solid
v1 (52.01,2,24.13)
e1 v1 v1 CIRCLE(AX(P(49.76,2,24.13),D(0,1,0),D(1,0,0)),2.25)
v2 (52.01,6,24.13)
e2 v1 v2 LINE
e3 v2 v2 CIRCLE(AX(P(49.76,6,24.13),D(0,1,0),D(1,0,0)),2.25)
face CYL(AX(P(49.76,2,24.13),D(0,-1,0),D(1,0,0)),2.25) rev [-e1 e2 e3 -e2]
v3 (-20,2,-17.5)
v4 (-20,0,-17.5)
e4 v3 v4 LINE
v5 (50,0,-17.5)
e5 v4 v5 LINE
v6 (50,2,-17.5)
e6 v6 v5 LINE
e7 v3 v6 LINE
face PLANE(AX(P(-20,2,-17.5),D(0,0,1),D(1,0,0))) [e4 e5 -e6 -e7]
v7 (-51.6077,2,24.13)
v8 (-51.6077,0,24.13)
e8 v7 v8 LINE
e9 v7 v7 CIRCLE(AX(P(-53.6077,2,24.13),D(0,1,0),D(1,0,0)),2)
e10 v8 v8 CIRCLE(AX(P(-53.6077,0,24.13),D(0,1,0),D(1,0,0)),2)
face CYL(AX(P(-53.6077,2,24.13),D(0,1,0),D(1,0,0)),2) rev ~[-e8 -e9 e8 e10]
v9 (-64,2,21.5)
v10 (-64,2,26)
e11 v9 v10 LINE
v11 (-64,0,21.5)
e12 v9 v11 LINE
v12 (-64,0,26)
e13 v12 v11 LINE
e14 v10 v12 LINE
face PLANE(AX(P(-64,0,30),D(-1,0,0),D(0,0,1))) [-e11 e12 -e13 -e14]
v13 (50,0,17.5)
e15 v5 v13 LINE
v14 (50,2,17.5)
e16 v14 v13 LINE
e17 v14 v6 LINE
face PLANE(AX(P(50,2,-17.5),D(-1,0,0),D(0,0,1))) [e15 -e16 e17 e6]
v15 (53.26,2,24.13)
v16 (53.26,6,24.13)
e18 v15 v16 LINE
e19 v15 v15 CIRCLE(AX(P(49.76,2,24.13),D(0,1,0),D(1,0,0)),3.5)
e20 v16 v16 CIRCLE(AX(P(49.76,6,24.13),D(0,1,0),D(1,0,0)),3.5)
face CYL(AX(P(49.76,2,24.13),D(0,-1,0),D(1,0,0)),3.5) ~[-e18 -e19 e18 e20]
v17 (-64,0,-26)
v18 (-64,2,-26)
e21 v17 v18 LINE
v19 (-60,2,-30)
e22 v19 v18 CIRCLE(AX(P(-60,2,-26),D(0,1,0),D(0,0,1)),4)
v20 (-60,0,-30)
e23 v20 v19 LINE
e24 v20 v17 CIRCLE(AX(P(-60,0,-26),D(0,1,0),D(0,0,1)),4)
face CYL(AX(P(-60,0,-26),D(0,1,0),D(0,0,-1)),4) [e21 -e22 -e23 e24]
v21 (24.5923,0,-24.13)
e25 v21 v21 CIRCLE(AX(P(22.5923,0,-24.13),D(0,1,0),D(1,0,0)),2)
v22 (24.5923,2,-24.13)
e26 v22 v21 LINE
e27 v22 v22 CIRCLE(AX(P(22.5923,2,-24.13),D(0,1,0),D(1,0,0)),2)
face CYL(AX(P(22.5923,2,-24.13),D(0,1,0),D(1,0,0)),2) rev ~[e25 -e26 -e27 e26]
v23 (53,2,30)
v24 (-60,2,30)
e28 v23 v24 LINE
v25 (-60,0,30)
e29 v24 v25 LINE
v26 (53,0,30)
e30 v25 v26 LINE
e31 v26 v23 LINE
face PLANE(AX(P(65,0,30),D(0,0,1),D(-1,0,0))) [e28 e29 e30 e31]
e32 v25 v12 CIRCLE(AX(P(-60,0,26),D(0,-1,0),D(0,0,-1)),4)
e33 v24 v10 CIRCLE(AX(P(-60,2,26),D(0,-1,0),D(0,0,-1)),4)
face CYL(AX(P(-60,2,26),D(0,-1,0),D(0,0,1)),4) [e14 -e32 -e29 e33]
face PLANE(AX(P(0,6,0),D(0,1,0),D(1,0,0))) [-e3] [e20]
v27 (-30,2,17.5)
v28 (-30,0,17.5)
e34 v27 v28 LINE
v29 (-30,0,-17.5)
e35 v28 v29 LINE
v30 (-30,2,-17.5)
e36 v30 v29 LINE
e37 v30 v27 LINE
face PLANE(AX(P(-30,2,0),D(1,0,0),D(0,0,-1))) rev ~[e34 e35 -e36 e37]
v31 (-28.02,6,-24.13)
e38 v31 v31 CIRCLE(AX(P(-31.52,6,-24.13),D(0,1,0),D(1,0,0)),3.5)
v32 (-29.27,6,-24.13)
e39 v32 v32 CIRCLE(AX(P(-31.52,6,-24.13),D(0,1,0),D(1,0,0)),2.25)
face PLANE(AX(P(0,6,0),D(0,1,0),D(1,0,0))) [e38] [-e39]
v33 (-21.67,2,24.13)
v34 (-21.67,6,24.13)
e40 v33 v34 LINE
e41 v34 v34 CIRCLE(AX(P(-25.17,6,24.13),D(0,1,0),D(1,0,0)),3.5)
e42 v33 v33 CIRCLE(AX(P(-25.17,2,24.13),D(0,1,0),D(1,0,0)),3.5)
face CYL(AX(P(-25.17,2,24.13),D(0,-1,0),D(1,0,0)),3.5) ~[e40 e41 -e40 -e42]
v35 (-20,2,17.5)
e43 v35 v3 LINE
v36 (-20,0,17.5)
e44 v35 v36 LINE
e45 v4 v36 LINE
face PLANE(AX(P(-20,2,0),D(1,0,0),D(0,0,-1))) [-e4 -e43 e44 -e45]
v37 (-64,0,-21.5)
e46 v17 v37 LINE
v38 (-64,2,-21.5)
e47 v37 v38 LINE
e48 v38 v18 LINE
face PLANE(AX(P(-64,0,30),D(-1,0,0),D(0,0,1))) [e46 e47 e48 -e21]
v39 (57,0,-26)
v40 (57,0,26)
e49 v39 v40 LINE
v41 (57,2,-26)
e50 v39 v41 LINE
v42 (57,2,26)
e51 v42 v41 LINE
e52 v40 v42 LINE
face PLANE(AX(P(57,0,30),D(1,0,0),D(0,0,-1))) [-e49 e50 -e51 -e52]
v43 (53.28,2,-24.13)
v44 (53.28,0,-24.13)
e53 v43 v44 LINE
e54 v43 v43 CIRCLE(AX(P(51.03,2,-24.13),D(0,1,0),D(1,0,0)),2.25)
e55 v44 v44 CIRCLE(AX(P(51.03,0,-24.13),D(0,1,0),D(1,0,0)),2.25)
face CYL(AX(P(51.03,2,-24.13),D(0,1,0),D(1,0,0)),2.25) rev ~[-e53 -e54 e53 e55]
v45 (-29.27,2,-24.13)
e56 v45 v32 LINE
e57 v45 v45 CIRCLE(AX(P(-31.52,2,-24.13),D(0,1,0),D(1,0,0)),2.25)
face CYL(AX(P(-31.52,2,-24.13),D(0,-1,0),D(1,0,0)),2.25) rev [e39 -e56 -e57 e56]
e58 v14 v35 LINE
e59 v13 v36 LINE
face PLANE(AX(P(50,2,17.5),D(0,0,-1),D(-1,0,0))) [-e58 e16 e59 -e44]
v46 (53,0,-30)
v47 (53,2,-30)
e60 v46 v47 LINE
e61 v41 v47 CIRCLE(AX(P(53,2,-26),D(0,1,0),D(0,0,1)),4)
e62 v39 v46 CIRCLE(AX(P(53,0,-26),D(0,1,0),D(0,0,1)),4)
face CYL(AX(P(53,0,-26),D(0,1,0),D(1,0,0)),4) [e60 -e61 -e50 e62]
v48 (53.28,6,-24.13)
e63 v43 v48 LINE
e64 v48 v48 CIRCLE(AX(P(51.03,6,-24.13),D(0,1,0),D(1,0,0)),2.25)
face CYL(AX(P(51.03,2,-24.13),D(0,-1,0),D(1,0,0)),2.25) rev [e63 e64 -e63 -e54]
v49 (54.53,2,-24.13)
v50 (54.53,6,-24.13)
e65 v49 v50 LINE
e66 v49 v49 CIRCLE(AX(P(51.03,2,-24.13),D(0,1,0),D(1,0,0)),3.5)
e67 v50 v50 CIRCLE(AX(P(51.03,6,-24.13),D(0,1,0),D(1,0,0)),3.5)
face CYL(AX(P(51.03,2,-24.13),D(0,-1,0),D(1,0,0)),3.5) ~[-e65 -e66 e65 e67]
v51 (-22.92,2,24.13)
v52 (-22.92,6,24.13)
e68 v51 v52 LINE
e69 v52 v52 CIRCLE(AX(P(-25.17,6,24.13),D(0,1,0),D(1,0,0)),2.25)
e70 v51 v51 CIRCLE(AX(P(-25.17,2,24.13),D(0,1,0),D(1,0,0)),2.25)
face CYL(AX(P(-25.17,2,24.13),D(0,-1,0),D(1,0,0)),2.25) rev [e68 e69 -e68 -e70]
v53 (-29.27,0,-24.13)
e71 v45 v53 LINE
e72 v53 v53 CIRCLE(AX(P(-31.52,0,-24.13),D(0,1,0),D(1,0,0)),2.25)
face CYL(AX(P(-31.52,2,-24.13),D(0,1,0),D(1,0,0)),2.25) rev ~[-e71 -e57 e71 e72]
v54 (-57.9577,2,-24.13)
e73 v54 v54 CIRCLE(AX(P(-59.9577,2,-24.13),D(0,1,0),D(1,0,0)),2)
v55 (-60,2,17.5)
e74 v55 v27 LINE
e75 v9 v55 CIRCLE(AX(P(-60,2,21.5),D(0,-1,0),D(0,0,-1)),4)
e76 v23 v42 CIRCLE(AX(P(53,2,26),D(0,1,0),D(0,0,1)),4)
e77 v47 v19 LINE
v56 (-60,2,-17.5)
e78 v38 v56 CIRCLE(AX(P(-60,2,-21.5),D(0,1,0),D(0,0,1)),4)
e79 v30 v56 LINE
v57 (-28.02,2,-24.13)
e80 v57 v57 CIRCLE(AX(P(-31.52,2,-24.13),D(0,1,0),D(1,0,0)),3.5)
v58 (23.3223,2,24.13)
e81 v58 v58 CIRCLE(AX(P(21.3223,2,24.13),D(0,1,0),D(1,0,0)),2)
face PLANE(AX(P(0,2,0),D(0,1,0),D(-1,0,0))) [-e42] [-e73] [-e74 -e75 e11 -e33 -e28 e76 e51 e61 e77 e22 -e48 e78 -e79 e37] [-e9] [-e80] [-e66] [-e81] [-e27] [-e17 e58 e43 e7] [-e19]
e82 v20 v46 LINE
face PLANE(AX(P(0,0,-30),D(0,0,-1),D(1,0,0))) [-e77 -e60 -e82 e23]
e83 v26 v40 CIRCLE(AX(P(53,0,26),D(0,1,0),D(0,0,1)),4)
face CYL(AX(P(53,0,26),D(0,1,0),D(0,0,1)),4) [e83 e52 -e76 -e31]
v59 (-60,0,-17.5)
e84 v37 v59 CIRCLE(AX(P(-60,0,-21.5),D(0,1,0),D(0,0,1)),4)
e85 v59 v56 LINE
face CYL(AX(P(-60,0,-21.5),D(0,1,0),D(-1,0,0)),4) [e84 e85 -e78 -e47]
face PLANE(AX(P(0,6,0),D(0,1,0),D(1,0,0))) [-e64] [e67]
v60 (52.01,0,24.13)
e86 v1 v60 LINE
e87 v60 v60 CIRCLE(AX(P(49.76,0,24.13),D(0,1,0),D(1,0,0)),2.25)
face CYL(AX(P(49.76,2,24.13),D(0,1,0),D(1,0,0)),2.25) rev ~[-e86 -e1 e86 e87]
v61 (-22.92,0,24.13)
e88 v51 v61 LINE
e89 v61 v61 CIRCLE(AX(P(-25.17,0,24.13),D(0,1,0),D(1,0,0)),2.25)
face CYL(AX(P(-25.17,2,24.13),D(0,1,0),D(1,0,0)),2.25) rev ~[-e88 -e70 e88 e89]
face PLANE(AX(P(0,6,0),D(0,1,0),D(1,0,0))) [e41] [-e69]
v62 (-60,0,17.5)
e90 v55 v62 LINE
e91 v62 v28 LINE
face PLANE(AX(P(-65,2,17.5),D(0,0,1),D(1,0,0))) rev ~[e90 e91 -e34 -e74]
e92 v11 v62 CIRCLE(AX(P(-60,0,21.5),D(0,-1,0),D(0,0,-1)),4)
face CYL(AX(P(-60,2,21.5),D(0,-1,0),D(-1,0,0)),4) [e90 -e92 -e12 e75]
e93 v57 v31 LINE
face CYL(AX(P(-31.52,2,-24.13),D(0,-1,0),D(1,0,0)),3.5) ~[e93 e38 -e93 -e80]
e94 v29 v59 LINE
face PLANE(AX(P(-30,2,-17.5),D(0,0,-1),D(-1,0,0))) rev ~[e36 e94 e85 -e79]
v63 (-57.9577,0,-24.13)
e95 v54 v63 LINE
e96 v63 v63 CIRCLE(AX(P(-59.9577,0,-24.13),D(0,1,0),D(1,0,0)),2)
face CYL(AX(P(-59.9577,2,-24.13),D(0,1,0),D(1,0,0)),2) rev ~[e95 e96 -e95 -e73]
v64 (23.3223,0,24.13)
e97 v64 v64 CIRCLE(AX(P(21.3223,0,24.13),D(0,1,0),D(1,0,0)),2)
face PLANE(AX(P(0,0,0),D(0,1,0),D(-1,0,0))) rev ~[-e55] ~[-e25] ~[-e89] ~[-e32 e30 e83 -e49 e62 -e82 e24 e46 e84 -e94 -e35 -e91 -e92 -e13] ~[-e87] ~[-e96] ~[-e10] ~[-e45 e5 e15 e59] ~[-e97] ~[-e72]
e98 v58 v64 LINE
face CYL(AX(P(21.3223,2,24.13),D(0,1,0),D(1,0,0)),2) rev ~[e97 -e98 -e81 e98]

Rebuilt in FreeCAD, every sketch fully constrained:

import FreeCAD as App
import Part
import Sketcher
Q = App.Units.Quantity


def edges_at(feature, points):
    """Names of the edges that pass closest to the given points."""
    edges = feature.Shape.Edges
    near = lambda p: min(range(len(edges)), key=lambda i: edges[i].distToShape(Part.Vertex(*p))[0])
    return sorted({f"Edge{near(p) + 1}" for p in points})

doc = App.newDocument("Part")
body = doc.addObject("PartDesign::Body", "Body")

sketch1 = body.newObject("Sketcher::SketchObject", "Sketch")
sketch1.AttachmentSupport = (doc.getObject("XZ_Plane"), [""])
sketch1.MapMode = "FlatFace"
sketch1.addGeometry([
    Part.LineSegment(App.Vector(65, 30, 0), App.Vector(65, -30, 0)),
    Part.LineSegment(App.Vector(65, -30, 0), App.Vector(-65, -30, 0)),
    Part.LineSegment(App.Vector(-65, -30, 0), App.Vector(-65, 30, 0)),
    Part.LineSegment(App.Vector(-65, 30, 0), App.Vector(65, 30, 0)),
], False)
sketch1.addConstraint([
    Sketcher.Constraint("Coincident", 0, 2, 1, 1),
    Sketcher.Constraint("Coincident", 1, 2, 2, 1),
    Sketcher.Constraint("Coincident", 2, 2, 3, 1),
    Sketcher.Constraint("Coincident", 3, 2, 0, 1),
    Sketcher.Constraint("Vertical", 0),
    Sketcher.Constraint("Horizontal", 1),
    Sketcher.Constraint("Vertical", 2),
    Sketcher.Constraint("Horizontal", 3),
    Sketcher.Constraint("Symmetric", 0, 2, 2, 2, -1, 1),
    Sketcher.Constraint("DistanceX", 1, 2, 1, 1, Q("130 mm")),
    Sketcher.Constraint("DistanceY", 0, 2, 0, 1, Q("60 mm")),
])
pad1 = body.newObject("PartDesign::Pad", "Pad")
pad1.Profile = sketch1
pad1.Length = 2
pad1.Reversed = True

sketch2 = body.newObject("Sketcher::SketchObject", "Sketch001")
sketch2.AttachmentSupport = (doc.getObject("XZ_Plane"), [""])
sketch2.MapMode = "FlatFace"
sketch2.AttachmentOffset = App.Placement(App.Vector(0, 0, -2), App.Rotation())
sketch2.addGeometry([
    Part.Circle(App.Vector(49.8, 24.1, 0), App.Vector(0, 0, 1), 2.2),
    Part.Circle(App.Vector(51, -24.1, 0), App.Vector(0, 0, 1), 2.2),
    Part.Circle(App.Vector(-31.5, -24.1, 0), App.Vector(0, 0, 1), 2.2),
    Part.Circle(App.Vector(-25.2, 24.1, 0), App.Vector(0, 0, 1), 2.2),
    Part.Circle(App.Vector(21.3, 24.1, 0), App.Vector(0, 0, 1), 2),
    Part.Circle(App.Vector(22.6, -24.1, 0), App.Vector(0, 0, 1), 2),
    Part.Circle(App.Vector(-60, -24.1, 0), App.Vector(0, 0, 1), 2),
    Part.Circle(App.Vector(-53.6, 24.1, 0), App.Vector(0, 0, 1), 2),
], False)
sketch2.addConstraint([
    Sketcher.Constraint("Equal", 0, 1),
    Sketcher.Constraint("Equal", 1, 2),
    Sketcher.Constraint("Equal", 2, 3),
    Sketcher.Constraint("Equal", 4, 5),
    Sketcher.Constraint("Equal", 5, 6),
    Sketcher.Constraint("Equal", 6, 7),
    Sketcher.Constraint("Horizontal", 1, 3, 2, 3),
    Sketcher.Constraint("Horizontal", 0, 3, 3, 3),
    Sketcher.Constraint("Horizontal", 3, 3, 4, 3),
    Sketcher.Constraint("Horizontal", 2, 3, 5, 3),
    Sketcher.Constraint("Horizontal", 5, 3, 6, 3),
    Sketcher.Constraint("Horizontal", 4, 3, 7, 3),
    Sketcher.Constraint("Diameter", 4, Q("4 mm")),
    Sketcher.Constraint("Diameter", 0, Q("4.5 mm")),
    Sketcher.Constraint("DistanceY", -1, 1, 0, 3, Q("24.13 mm")),
    Sketcher.Constraint("DistanceY", 1, 3, -1, 1, Q("24.13 mm")),
    Sketcher.Constraint("DistanceX", 2, 3, 1, 3, Q("82.55 mm")),
    Sketcher.Constraint("DistanceX", 3, 3, 0, 3, Q("74.93 mm")),
    Sketcher.Constraint("DistanceX", 6, 3, 5, 3, Q("82.55 mm")),
    Sketcher.Constraint("DistanceX", 7, 3, 4, 3, Q("74.93 mm")),
    Sketcher.Constraint("DistanceX", 3, 3, 1, 3, Q("76.2 mm")),
    Sketcher.Constraint("DistanceX", 7, 3, 5, 3, Q("76.2 mm")),
    Sketcher.Constraint("DistanceX", -1, 1, 0, 3, Q("49.76 mm")),
    Sketcher.Constraint("DistanceX", -1, 1, 4, 3, Q("21.3223 mm")),
])
pocket1 = body.newObject("PartDesign::Pocket", "Pocket")
pocket1.Profile = sketch2
pocket1.Length = 2
pocket1.Reversed = True

sketch3 = body.newObject("Sketcher::SketchObject", "Sketch002")
sketch3.AttachmentSupport = (doc.getObject("XZ_Plane"), [""])
sketch3.MapMode = "FlatFace"
sketch3.AttachmentOffset = App.Placement(App.Vector(0, 0, -2), App.Rotation())
sketch3.addGeometry([
    Part.LineSegment(App.Vector(-30, -18, 0), App.Vector(-65, -18, 0)),
    Part.LineSegment(App.Vector(-65, -18, 0), App.Vector(-65, 18, 0)),
    Part.LineSegment(App.Vector(-65, 18, 0), App.Vector(-30, 18, 0)),
    Part.LineSegment(App.Vector(-30, 18, 0), App.Vector(-30, -18, 0)),
    Part.LineSegment(App.Vector(-20, -18, 0), App.Vector(-20, 18, 0)),
    Part.LineSegment(App.Vector(-20, 18, 0), App.Vector(50, 18, 0)),
    Part.LineSegment(App.Vector(50, 18, 0), App.Vector(50, -18, 0)),
    Part.LineSegment(App.Vector(50, -18, 0), App.Vector(-20, -18, 0)),
], False)
sketch3.addConstraint([
    Sketcher.Constraint("Coincident", 0, 2, 1, 1),
    Sketcher.Constraint("Coincident", 1, 2, 2, 1),
    Sketcher.Constraint("Coincident", 2, 2, 3, 1),
    Sketcher.Constraint("Coincident", 3, 2, 0, 1),
    Sketcher.Constraint("Coincident", 4, 2, 5, 1),
    Sketcher.Constraint("Coincident", 5, 2, 6, 1),
    Sketcher.Constraint("Coincident", 6, 2, 7, 1),
    Sketcher.Constraint("Coincident", 7, 2, 4, 1),
    Sketcher.Constraint("Horizontal", 0),
    Sketcher.Constraint("Vertical", 1),
    Sketcher.Constraint("Horizontal", 2),
    Sketcher.Constraint("Vertical", 3),
    Sketcher.Constraint("Vertical", 4),
    Sketcher.Constraint("Horizontal", 5),
    Sketcher.Constraint("Vertical", 6),
    Sketcher.Constraint("Horizontal", 7),
    Sketcher.Constraint("Horizontal", 2, 2, 4, 2),
    Sketcher.Constraint("Horizontal", 3, 2, 6, 2),
    Sketcher.Constraint("Equal", 2, 1),
    Sketcher.Constraint("DistanceX", 0, 2, 0, 1, Q("35 mm")),
    Sketcher.Constraint("DistanceX", 5, 1, 5, 2, Q("70 mm")),
    Sketcher.Constraint("DistanceX", 0, 2, -1, 1, Q("65 mm")),
    Sketcher.Constraint("DistanceX", 4, 2, -1, 1, Q("20 mm")),
    Sketcher.Constraint("DistanceY", 0, 2, -1, 1, Q("17.5 mm")),
])
pocket2 = body.newObject("PartDesign::Pocket", "Pocket001")
pocket2.Profile = sketch3
pocket2.Length = 2
pocket2.Reversed = True

sketch4 = body.newObject("Sketcher::SketchObject", "Sketch003")
sketch4.AttachmentSupport = (doc.getObject("YZ_Plane"), [""])
sketch4.MapMode = "FlatFace"
sketch4.AttachmentOffset = App.Placement(App.Vector(0, 0, -65), App.Rotation())
sketch4.addGeometry([
    Part.LineSegment(App.Vector(2, 30, 0), App.Vector(2, 17.5, 0)),
    Part.LineSegment(App.Vector(2, 17.5, 0), App.Vector(0, 17.5, 0)),
    Part.LineSegment(App.Vector(0, 17.5, 0), App.Vector(0, 30, 0)),
    Part.LineSegment(App.Vector(0, 30, 0), App.Vector(2, 30, 0)),
    Part.LineSegment(App.Vector(2, -30, 0), App.Vector(0, -30, 0)),
    Part.LineSegment(App.Vector(0, -30, 0), App.Vector(0, -17.5, 0)),
    Part.LineSegment(App.Vector(0, -17.5, 0), App.Vector(2, -17.5, 0)),
    Part.LineSegment(App.Vector(2, -17.5, 0), App.Vector(2, -30, 0)),
], False)
sketch4.addConstraint([
    Sketcher.Constraint("Coincident", 0, 2, 1, 1),
    Sketcher.Constraint("Coincident", 1, 2, 2, 1),
    Sketcher.Constraint("Coincident", 2, 2, 3, 1),
    Sketcher.Constraint("Coincident", 3, 2, 0, 1),
    Sketcher.Constraint("Coincident", 4, 2, 5, 1),
    Sketcher.Constraint("Coincident", 5, 2, 6, 1),
    Sketcher.Constraint("Coincident", 6, 2, 7, 1),
    Sketcher.Constraint("Coincident", 7, 2, 4, 1),
    Sketcher.Constraint("Vertical", 0),
    Sketcher.Constraint("Horizontal", 1),
    Sketcher.Constraint("Vertical", 2),
    Sketcher.Constraint("Horizontal", 3),
    Sketcher.Constraint("Horizontal", 4),
    Sketcher.Constraint("Vertical", 5),
    Sketcher.Constraint("Horizontal", 6),
    Sketcher.Constraint("Vertical", 7),
    Sketcher.Constraint("Symmetric", 2, 2, 4, 2, -1, 1),
    Sketcher.Constraint("Symmetric", 1, 2, 5, 2, -1),
    Sketcher.Constraint("Vertical", 3, 2, 6, 2),
    Sketcher.Constraint("DistanceX", 1, 2, 1, 1, Q("2 mm")),
    Sketcher.Constraint("DistanceY", 0, 2, 0, 1, Q("12.5 mm")),
    Sketcher.Constraint("DistanceY", -1, 1, 2, 2, Q("30 mm")),
])
pocket3 = body.newObject("PartDesign::Pocket", "Pocket002")
pocket3.Profile = sketch4
pocket3.Length = 1
pocket3.Reversed = True

sketch5 = body.newObject("Sketcher::SketchObject", "Sketch004")
sketch5.AttachmentSupport = (doc.getObject("YZ_Plane"), [""])
sketch5.MapMode = "FlatFace"
sketch5.AttachmentOffset = App.Placement(App.Vector(0, 0, 65), App.Rotation())
sketch5.addGeometry([
    Part.LineSegment(App.Vector(2, 30, 0), App.Vector(0, 30, 0)),
    Part.LineSegment(App.Vector(0, 30, 0), App.Vector(0, -30, 0)),
    Part.LineSegment(App.Vector(0, -30, 0), App.Vector(2, -30, 0)),
    Part.LineSegment(App.Vector(2, -30, 0), App.Vector(2, 30, 0)),
], False)
sketch5.addConstraint([
    Sketcher.Constraint("Coincident", 0, 2, 1, 1),
    Sketcher.Constraint("Coincident", 1, 2, 2, 1),
    Sketcher.Constraint("Coincident", 2, 2, 3, 1),
    Sketcher.Constraint("Coincident", 3, 2, 0, 1),
    Sketcher.Constraint("Horizontal", 0),
    Sketcher.Constraint("Vertical", 1),
    Sketcher.Constraint("Horizontal", 2),
    Sketcher.Constraint("Vertical", 3),
    Sketcher.Constraint("Symmetric", 0, 2, 1, 2, -1, 1),
    Sketcher.Constraint("DistanceX", 0, 2, 0, 1, Q("2 mm")),
    Sketcher.Constraint("DistanceY", 1, 2, 1, 1, Q("60 mm")),
])
pocket4 = body.newObject("PartDesign::Pocket", "Pocket003")
pocket4.Profile = sketch5
pocket4.Length = 8

sketch6 = body.newObject("Sketcher::SketchObject", "Sketch005")
sketch6.AttachmentSupport = (doc.getObject("XZ_Plane"), [""])
sketch6.MapMode = "FlatFace"
sketch6.AttachmentOffset = App.Placement(App.Vector(0, 0, -2), App.Rotation())
sketch6.addGeometry([
    Part.Circle(App.Vector(49.8, 24.1, 0), App.Vector(0, 0, 1), 3.5),
    Part.Circle(App.Vector(49.8, 24.1, 0), App.Vector(0, 0, 1), 2.2),
    Part.Circle(App.Vector(-25.2, 24.1, 0), App.Vector(0, 0, 1), 3.5),
    Part.Circle(App.Vector(-25.2, 24.1, 0), App.Vector(0, 0, 1), 2.2),
    Part.Circle(App.Vector(51, -24.1, 0), App.Vector(0, 0, 1), 3.5),
    Part.Circle(App.Vector(51, -24.1, 0), App.Vector(0, 0, 1), 2.2),
    Part.Circle(App.Vector(-31.5, -24.1, 0), App.Vector(0, 0, 1), 3.5),
    Part.Circle(App.Vector(-31.5, -24.1, 0), App.Vector(0, 0, 1), 2.2),
], False)
sketch6.addConstraint([
    Sketcher.Constraint("Coincident", 1, 3, 0, 3),
    Sketcher.Constraint("Coincident", 3, 3, 2, 3),
    Sketcher.Constraint("Coincident", 5, 3, 4, 3),
    Sketcher.Constraint("Coincident", 7, 3, 6, 3),
    Sketcher.Constraint("Equal", 0, 2),
    Sketcher.Constraint("Equal", 1, 3),
    Sketcher.Constraint("Equal", 2, 4),
    Sketcher.Constraint("Equal", 3, 5),
    Sketcher.Constraint("Equal", 4, 6),
    Sketcher.Constraint("Equal", 5, 7),
    Sketcher.Constraint("Horizontal", 1, 3, 2, 3),
    Sketcher.Constraint("Horizontal", 5, 3, 6, 3),
    Sketcher.Constraint("Diameter", 0, Q("7 mm")),
    Sketcher.Constraint("Diameter", 1, Q("4.5 mm")),
    Sketcher.Constraint("DistanceY", -1, 1, 0, 3, Q("24.13 mm")),
    Sketcher.Constraint("DistanceY", 4, 3, -1, 1, Q("24.13 mm")),
    Sketcher.Constraint("DistanceX", 2, 3, 0, 3, Q("74.93 mm")),
    Sketcher.Constraint("DistanceX", 6, 3, 4, 3, Q("82.55 mm")),
    Sketcher.Constraint("DistanceX", 2, 3, 4, 3, Q("76.2 mm")),
    Sketcher.Constraint("DistanceX", -1, 1, 0, 3, Q("49.76 mm")),
])
pad2 = body.newObject("PartDesign::Pad", "Pad001")
pad2.Profile = sketch6
pad2.Length = 4
pad2.Reversed = True
doc.recompute()

fillet = body.newObject("PartDesign::Fillet", "Fillet")
fillet.Base = (pad2, edges_at(pad2, [
    (-64, 1, -30),
    (-64, 1, -17.5),
    (-64, 1, 17.5),
    (-64, 1, 30),
]))
fillet.Radius = 4
doc.recompute()

fillet2 = body.newObject("PartDesign::Fillet", "Fillet001")
fillet2.Base = (fillet, edges_at(fillet, [(57, 1, 30), (57, 1, -30)]))
fillet2.Radius = 4

doc.recompute()
